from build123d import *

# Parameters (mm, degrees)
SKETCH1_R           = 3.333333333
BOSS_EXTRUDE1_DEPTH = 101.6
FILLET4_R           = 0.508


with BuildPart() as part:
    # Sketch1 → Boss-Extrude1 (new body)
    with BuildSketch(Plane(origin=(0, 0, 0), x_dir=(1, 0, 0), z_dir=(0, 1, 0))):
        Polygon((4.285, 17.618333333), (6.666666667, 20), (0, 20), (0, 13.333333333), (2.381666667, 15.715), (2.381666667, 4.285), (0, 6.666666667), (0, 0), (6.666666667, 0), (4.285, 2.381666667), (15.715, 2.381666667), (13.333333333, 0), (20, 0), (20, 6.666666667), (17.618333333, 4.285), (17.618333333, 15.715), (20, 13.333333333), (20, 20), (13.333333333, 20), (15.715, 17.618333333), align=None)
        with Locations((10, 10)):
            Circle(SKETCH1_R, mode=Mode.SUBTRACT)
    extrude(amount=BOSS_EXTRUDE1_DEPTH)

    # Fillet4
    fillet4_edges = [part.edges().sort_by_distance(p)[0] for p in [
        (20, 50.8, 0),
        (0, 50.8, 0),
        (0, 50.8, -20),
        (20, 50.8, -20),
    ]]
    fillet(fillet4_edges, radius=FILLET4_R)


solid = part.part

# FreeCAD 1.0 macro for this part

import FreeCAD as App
import Part
import Sketcher

V = App.Vector
Q = App.Units.Quantity


def edges_at(feature, points):
    """Names of the edges that pass closest to the given points."""
    edges = feature.Shape.Edges
    near = lambda p: min(range(len(edges)), key=lambda i: edges[i].distToShape(Part.Vertex(*p))[0])
    return sorted({f"Edge{near(p) + 1}" for p in points})

doc = App.newDocument("Part")
body = doc.addObject("PartDesign::Body", "Body")

sketch1 = doc.addObject("Sketcher::SketchObject", "Sketch")
body.addObject(sketch1)
sketch1.AttachmentSupport = (doc.XZ_Plane, [""])
sketch1.MapMode = "FlatFace"
sketch1.addGeometry([
    Part.LineSegment(V(4.3, -17.6, 0), V(6.7, -20, 0)),
    Part.LineSegment(V(6.7, -20, 0), V(0, -20, 0)),
    Part.LineSegment(V(0, -20, 0), V(0, -13.3, 0)),
    Part.LineSegment(V(0, -13.3, 0), V(2.4, -15.7, 0)),
    Part.LineSegment(V(2.4, -15.7, 0), V(2.4, -4.3, 0)),
    Part.LineSegment(V(2.4, -4.3, 0), V(0, -6.7, 0)),
    Part.LineSegment(V(0, -6.7, 0), V(0, 0, 0)),
    Part.LineSegment(V(0, 0, 0), V(6.7, 0, 0)),
    Part.LineSegment(V(6.7, 0, 0), V(4.3, -2.4, 0)),
    Part.LineSegment(V(4.3, -2.4, 0), V(15.7, -2.4, 0)),
    Part.LineSegment(V(15.7, -2.4, 0), V(13.3, 0, 0)),
    Part.LineSegment(V(13.3, 0, 0), V(20, 0, 0)),
    Part.LineSegment(V(20, 0, 0), V(20, -6.7, 0)),
    Part.LineSegment(V(20, -6.7, 0), V(17.6, -4.3, 0)),
    Part.LineSegment(V(17.6, -4.3, 0), V(17.6, -15.7, 0)),
    Part.LineSegment(V(17.6, -15.7, 0), V(20, -13.3, 0)),
    Part.LineSegment(V(20, -13.3, 0), V(20, -20, 0)),
    Part.LineSegment(V(20, -20, 0), V(13.3, -20, 0)),
    Part.LineSegment(V(13.3, -20, 0), V(15.7, -17.6, 0)),
    Part.LineSegment(V(15.7, -17.6, 0), V(4.3, -17.6, 0)),
    Part.Circle(V(10, -10, 0), V(0, 0, 1), 3.3),
], False)
sketch1.addConstraint([
    Sketcher.Constraint("Coincident", 0, 2, 1, 1),
    Sketcher.Constraint("Coincident", 1, 2, 2, 1),
    Sketcher.Constraint("Coincident", 2, 2, 3, 1),
    Sketcher.Constraint("Coincident", 3, 2, 4, 1),
    Sketcher.Constraint("Coincident", 4, 2, 5, 1),
    Sketcher.Constraint("Coincident", 5, 2, 6, 1),
    Sketcher.Constraint("Coincident", 6, 2, 7, 1),
    Sketcher.Constraint("Coincident", 7, 2, 8, 1),
    Sketcher.Constraint("Coincident", 8, 2, 9, 1),
    Sketcher.Constraint("Coincident", 9, 2, 10, 1),
    Sketcher.Constraint("Coincident", 10, 2, 11, 1),
    Sketcher.Constraint("Coincident", 11, 2, 12, 1),
    Sketcher.Constraint("Coincident", 12, 2, 13, 1),
    Sketcher.Constraint("Coincident", 13, 2, 14, 1),
    Sketcher.Constraint("Coincident", 14, 2, 15, 1),
    Sketcher.Constraint("Coincident", 15, 2, 16, 1),
    Sketcher.Constraint("Coincident", 16, 2, 17, 1),
    Sketcher.Constraint("Coincident", 17, 2, 18, 1),
    Sketcher.Constraint("Coincident", 18, 2, 19, 1),
    Sketcher.Constraint("Coincident", 19, 2, 0, 1),
    Sketcher.Constraint("Horizontal", 1),
    Sketcher.Constraint("Vertical", 2),
    Sketcher.Constraint("Vertical", 4),
    Sketcher.Constraint("Vertical", 6),
    Sketcher.Constraint("Horizontal", 7),
    Sketcher.Constraint("Horizontal", 9),
    Sketcher.Constraint("Horizontal", 11),
    Sketcher.Constraint("Vertical", 12),
    Sketcher.Constraint("Vertical", 14),
    Sketcher.Constraint("Vertical", 16),
    Sketcher.Constraint("Horizontal", 17),
    Sketcher.Constraint("Horizontal", 19),
    Sketcher.Constraint("Coincident", 6, 2, -1, 1),
    Sketcher.Constraint("PointOnObject", 1, 2, -2),
    Sketcher.Constraint("PointOnObject", 10, 2, -1),
    Sketcher.Constraint("Parallel", 0, 3),
    Sketcher.Constraint("Perpendicular", 3, 5),
    Sketcher.Constraint("Parallel", 5, 8),
    Sketcher.Constraint("Perpendicular", 8, 10),
    Sketcher.Constraint("Parallel", 10, 13),
    Sketcher.Constraint("Perpendicular", 13, 15),
    Sketcher.Constraint("Parallel", 15, 18),
    Sketcher.Constraint("Horizontal", 5, 2, 12, 2),
    Sketcher.Constraint("Horizontal", 4, 2, 13, 2),
    Sketcher.Constraint("Horizontal", 3, 2, 14, 2),
    Sketcher.Constraint("Horizontal", 2, 2, 15, 2),
    Sketcher.Constraint("Horizontal", 1, 2, 16, 2),
    Sketcher.Constraint("Vertical", 0, 2, 7, 2),
    Sketcher.Constraint("Vertical", 12, 2, 15, 2),
    Sketcher.Constraint("Vertical", 10, 2, 17, 2),
    Sketcher.Constraint("Vertical", 9, 2, 18, 2),
    Sketcher.Constraint("Equal", 7, 11),
    Sketcher.Constraint("Equal", 17, 2),
    Sketcher.Constraint("Equal", 19, 4),
    Sketcher.Constraint("Equal", 2, 6),
    Sketcher.Constraint("Equal", 0, 3),
    Sketcher.Constraint("DistanceX", 9, 1, 9, 2, Q("0.45 in")),
    Sketcher.Constraint("DistanceY", 3, 2, 20, 3, Q("0.225 in")),
    Sketcher.Constraint("DistanceX", 8, 2, 20, 3, Q("0.225 in")),
    Sketcher.Constraint("Diameter", 20, 6.666667),
    Sketcher.Constraint("DistanceX", -1, 1, 20, 3, 10.0),
    Sketcher.Constraint("DistanceX", 1, 2, 1, 1, 6.666667),
])
pad1 = doc.addObject("PartDesign::Pad", "Pad")
body.addObject(pad1)
pad1.Profile = sketch1
pad1.Length = Q("4 in")
pad1.Reversed = True
doc.recompute()

fillet = doc.addObject("PartDesign::Fillet", "Fillet")
body.addObject(fillet)
fillet.Base = (pad1, edges_at(pad1, [
    (20, 50.8, 0),
    (0, 50.8, 0),
    (0, 50.8, -20),
    (20, 50.8, -20),
]))
fillet.Radius = Q("0.02 in")

doc.recompute()
